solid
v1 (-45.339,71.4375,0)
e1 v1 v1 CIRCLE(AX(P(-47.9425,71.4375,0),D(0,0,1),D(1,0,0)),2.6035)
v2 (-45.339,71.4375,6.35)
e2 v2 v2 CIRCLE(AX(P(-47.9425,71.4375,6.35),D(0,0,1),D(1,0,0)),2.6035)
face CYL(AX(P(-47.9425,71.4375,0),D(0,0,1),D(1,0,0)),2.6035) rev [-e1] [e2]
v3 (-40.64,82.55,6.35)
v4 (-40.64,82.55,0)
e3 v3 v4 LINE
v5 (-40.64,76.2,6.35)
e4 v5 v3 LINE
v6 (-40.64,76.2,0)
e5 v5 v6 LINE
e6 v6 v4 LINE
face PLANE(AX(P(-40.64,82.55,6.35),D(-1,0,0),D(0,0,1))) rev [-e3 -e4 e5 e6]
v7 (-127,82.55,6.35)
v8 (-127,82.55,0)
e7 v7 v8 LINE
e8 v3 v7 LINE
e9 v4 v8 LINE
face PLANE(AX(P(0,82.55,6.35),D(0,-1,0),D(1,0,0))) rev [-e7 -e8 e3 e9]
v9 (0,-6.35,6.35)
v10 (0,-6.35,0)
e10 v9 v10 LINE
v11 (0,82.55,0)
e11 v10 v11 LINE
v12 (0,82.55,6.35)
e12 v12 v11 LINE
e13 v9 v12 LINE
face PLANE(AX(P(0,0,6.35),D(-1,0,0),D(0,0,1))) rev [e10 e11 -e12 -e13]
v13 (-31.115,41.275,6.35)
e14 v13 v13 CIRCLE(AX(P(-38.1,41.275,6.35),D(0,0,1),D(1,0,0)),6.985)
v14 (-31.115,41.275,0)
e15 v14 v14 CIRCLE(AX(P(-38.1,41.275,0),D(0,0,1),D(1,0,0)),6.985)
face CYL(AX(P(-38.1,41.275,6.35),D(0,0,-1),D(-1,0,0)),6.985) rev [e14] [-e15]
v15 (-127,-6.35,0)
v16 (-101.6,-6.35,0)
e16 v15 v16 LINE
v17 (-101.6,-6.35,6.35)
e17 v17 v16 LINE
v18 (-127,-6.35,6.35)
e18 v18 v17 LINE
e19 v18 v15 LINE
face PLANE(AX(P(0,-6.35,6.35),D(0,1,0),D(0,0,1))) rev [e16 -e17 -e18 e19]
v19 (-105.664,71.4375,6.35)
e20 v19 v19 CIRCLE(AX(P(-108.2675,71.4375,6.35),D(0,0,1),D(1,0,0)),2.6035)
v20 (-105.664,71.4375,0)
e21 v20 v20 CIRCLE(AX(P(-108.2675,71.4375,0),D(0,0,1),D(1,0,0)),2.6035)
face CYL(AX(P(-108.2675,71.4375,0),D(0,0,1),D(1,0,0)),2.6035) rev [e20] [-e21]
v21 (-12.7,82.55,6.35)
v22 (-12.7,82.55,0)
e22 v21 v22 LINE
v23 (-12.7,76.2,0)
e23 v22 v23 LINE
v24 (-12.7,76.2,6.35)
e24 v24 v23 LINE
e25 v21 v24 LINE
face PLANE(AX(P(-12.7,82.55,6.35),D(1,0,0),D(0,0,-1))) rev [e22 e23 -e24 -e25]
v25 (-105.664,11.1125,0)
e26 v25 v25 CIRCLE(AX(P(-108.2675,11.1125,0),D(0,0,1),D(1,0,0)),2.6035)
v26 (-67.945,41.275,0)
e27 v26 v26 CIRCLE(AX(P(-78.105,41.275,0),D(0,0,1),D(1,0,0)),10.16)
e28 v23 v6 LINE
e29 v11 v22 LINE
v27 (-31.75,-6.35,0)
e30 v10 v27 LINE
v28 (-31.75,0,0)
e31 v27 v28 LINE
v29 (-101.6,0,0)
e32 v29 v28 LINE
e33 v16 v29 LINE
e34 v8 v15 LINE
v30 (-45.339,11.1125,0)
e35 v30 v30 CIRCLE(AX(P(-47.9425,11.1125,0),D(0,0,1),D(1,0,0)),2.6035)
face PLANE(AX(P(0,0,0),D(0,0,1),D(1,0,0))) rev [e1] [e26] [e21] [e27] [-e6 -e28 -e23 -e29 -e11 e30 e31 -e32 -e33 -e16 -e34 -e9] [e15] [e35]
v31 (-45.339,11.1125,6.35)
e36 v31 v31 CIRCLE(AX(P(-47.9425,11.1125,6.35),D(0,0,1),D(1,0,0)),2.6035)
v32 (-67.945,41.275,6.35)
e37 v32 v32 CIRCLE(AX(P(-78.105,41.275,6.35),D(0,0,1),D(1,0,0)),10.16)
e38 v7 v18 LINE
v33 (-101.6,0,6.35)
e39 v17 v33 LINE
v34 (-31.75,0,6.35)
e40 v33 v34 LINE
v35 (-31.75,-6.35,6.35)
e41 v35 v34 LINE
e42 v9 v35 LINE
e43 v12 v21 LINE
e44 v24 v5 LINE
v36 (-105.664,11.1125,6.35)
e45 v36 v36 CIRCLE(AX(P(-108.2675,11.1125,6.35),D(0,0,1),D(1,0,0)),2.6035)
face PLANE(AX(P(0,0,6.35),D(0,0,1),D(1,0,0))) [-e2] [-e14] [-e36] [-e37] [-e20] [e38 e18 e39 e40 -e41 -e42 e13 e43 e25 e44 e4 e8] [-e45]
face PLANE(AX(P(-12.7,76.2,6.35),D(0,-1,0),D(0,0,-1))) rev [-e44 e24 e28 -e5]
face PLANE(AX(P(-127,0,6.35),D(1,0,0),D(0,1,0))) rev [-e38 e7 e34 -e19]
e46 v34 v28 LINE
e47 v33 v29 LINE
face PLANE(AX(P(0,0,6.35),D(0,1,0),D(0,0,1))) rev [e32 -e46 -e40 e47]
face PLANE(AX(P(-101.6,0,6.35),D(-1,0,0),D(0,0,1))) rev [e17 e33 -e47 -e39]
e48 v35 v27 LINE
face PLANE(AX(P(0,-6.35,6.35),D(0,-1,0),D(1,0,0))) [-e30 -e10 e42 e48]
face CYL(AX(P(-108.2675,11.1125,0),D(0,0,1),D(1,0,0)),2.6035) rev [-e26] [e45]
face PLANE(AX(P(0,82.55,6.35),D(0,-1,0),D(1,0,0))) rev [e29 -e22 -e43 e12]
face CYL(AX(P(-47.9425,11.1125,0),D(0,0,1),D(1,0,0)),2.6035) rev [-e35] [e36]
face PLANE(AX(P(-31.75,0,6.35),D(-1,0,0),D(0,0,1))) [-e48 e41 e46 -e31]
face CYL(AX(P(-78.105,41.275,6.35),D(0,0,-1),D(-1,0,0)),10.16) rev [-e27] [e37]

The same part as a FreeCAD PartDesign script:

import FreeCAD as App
import Part
import Sketcher
Q = App.Units.Quantity


def add_polygon(sketch, points):
    """Adds a closed chain of lines whose ends are joined by coincident constraints."""
    first, n = sketch.GeometryCount, len(points)
    for a, b in zip(points, points[1:] + points[:1]):
        sketch.addGeometry(Part.LineSegment(App.Vector(*a, 0), App.Vector(*b, 0)), False)
    for i in range(n):
        sketch.addConstraint(Sketcher.Constraint("Coincident", first + i, 2, first + (i + 1) % n, 1))

doc = App.newDocument("Part")
body = doc.addObject("PartDesign::Body", "Body")

# Sketch on XY plane
sketch1 = body.newObject("Sketcher::SketchObject", "Sketch")
sketch1.AttachmentSupport = (doc.getObject("XY_Plane"), [""])
sketch1.MapMode = "FlatFace"
add_polygon(sketch1, [(-127, 83), (-127, -6), (-102, -6), (-102, 0), (-32, 0), (-32, -6), (0, -6), (0, 83)])  # lines 0-7
sketch1.addGeometry(Part.Circle(App.Vector(-78, 41, 0), App.Vector(0, 0, 1), 10), False)  # 8
sketch1.addGeometry(Part.Circle(App.Vector(-38, 41, 0), App.Vector(0, 0, 1), 7), False)  # 9
sketch1.addConstraint(Sketcher.Constraint("Vertical", 0))
sketch1.addConstraint(Sketcher.Constraint("Horizontal", 1))
sketch1.addConstraint(Sketcher.Constraint("Vertical", 2))
sketch1.addConstraint(Sketcher.Constraint("Horizontal", 3))
sketch1.addConstraint(Sketcher.Constraint("Vertical", 4))
sketch1.addConstraint(Sketcher.Constraint("Horizontal", 5))
sketch1.addConstraint(Sketcher.Constraint("Vertical", 6))
sketch1.addConstraint(Sketcher.Constraint("Horizontal", 7))
sketch1.addConstraint(Sketcher.Constraint("PointOnObject", 2, 2, -1))
sketch1.addConstraint(Sketcher.Constraint("PointOnObject", 5, 2, -2))
sketch1.addConstraint(Sketcher.Constraint("Horizontal", 8, 3, 9, 3))
sketch1.addConstraint(Sketcher.Constraint("Horizontal", 1, 2, 4, 2))
sketch1.addConstraint(Sketcher.Constraint("Diameter", 8, Q("0.8 in")))
sketch1.addConstraint(Sketcher.Constraint("Diameter", 9, Q("0.55 in")))
sketch1.addConstraint(Sketcher.Constraint("DistanceX", 1, 1, 1, 2, Q("1 in")))
sketch1.addConstraint(Sketcher.Constraint("DistanceX", 7, 2, 7, 1, Q("5 in")))
sketch1.addConstraint(Sketcher.Constraint("DistanceY", 0, 2, 0, 1, Q("3.5 in")))
sketch1.addConstraint(Sketcher.Constraint("DistanceX", 3, 1, 3, 2, Q("2.75 in")))
sketch1.addConstraint(Sketcher.Constraint("DistanceY", 2, 1, 2, 2, Q("0.25 in")))
sketch1.addConstraint(Sketcher.Constraint("DistanceX", 9, 3, -1, 1, Q("1.5 in")))
sketch1.addConstraint(Sketcher.Constraint("DistanceX", 8, 3, -1, 1, Q("3.075 in")))
sketch1.addConstraint(Sketcher.Constraint("DistanceY", -1, 1, 8, 3, Q("1.625 in")))
pad1 = body.newObject("PartDesign::Pad", "Pad")
pad1.Profile = sketch1
pad1.Length = Q("0.25 in")

# Sketch on XY plane
sketch2 = body.newObject("Sketcher::SketchObject", "Sketch001")
sketch2.AttachmentSupport = (doc.getObject("XY_Plane"), [""])
sketch2.MapMode = "FlatFace"
sketch2.AttachmentOffset = App.Placement(App.Vector(0, 0, 0.25 * 25.4), App.Rotation())
sketch2.addGeometry(Part.Circle(App.Vector(-108.3, 71.4, 0), App.Vector(0, 0, 1), 2.6), False)
sketch2.addGeometry(Part.Circle(App.Vector(-47.9, 71.4, 0), App.Vector(0, 0, 1), 2.6), False)
sketch2.addGeometry(Part.Circle(App.Vector(-108.3, 11.1, 0), App.Vector(0, 0, 1), 2.6), False)
sketch2.addGeometry(Part.Circle(App.Vector(-47.9, 11.1, 0), App.Vector(0, 0, 1), 2.6), False)
sketch2.addConstraint(Sketcher.Constraint("Equal", 0, 1))
sketch2.addConstraint(Sketcher.Constraint("Equal", 1, 2))
sketch2.addConstraint(Sketcher.Constraint("Equal", 2, 3))
sketch2.addConstraint(Sketcher.Constraint("Horizontal", 0, 3, 1, 3))
sketch2.addConstraint(Sketcher.Constraint("Horizontal", 2, 3, 3, 3))
sketch2.addConstraint(Sketcher.Constraint("Vertical", 0, 3, 2, 3))
sketch2.addConstraint(Sketcher.Constraint("Vertical", 1, 3, 3, 3))
sketch2.addConstraint(Sketcher.Constraint("Diameter", 0, Q("0.205 in")))
sketch2.addConstraint(Sketcher.Constraint("DistanceY", -1, 1, 0, 3, Q("2.8125 in")))
sketch2.addConstraint(Sketcher.Constraint("DistanceY", -1, 1, 2, 3, Q("0.4375 in")))
sketch2.addConstraint(Sketcher.Constraint("DistanceX", 0, 3, 1, 3, Q("2.375 in")))
sketch2.addConstraint(Sketcher.Constraint("DistanceX", 0, 3, -1, 1, Q("4.2625 in")))
pocket1 = body.newObject("PartDesign::Pocket", "Pocket")
pocket1.Profile = sketch2
pocket1.Type = "ThroughAll"

# Sketch on XY plane
sketch3 = body.newObject("Sketcher::SketchObject", "Sketch002")
sketch3.AttachmentSupport = (doc.getObject("XY_Plane"), [""])
sketch3.MapMode = "FlatFace"
add_polygon(sketch3, [(-13, 83), (-13, 76), (-41, 76), (-41, 83)])  # lines 0-3
sketch3.addConstraint(Sketcher.Constraint("Vertical", 0))
sketch3.addConstraint(Sketcher.Constraint("Horizontal", 1))
sketch3.addConstraint(Sketcher.Constraint("Vertical", 2))
sketch3.addConstraint(Sketcher.Constraint("Horizontal", 3))
sketch3.addConstraint(Sketcher.Constraint("DistanceX", 1, 2, 1, 1, Q("1.1 in")))
sketch3.addConstraint(Sketcher.Constraint("DistanceY", -1, 1, 0, 2, Q("3 in")))
sketch3.addConstraint(Sketcher.Constraint("DistanceY", 0, 2, 0, 1, Q("0.25 in")))
sketch3.addConstraint(Sketcher.Constraint("DistanceX", 0, 2, -1, 1, Q("0.5 in")))
pocket2 = body.newObject("PartDesign::Pocket", "Pocket001")
pocket2.Profile = sketch3
pocket2.Length = Q("0.25 in")
pocket2.Reversed = True

doc.recompute()
